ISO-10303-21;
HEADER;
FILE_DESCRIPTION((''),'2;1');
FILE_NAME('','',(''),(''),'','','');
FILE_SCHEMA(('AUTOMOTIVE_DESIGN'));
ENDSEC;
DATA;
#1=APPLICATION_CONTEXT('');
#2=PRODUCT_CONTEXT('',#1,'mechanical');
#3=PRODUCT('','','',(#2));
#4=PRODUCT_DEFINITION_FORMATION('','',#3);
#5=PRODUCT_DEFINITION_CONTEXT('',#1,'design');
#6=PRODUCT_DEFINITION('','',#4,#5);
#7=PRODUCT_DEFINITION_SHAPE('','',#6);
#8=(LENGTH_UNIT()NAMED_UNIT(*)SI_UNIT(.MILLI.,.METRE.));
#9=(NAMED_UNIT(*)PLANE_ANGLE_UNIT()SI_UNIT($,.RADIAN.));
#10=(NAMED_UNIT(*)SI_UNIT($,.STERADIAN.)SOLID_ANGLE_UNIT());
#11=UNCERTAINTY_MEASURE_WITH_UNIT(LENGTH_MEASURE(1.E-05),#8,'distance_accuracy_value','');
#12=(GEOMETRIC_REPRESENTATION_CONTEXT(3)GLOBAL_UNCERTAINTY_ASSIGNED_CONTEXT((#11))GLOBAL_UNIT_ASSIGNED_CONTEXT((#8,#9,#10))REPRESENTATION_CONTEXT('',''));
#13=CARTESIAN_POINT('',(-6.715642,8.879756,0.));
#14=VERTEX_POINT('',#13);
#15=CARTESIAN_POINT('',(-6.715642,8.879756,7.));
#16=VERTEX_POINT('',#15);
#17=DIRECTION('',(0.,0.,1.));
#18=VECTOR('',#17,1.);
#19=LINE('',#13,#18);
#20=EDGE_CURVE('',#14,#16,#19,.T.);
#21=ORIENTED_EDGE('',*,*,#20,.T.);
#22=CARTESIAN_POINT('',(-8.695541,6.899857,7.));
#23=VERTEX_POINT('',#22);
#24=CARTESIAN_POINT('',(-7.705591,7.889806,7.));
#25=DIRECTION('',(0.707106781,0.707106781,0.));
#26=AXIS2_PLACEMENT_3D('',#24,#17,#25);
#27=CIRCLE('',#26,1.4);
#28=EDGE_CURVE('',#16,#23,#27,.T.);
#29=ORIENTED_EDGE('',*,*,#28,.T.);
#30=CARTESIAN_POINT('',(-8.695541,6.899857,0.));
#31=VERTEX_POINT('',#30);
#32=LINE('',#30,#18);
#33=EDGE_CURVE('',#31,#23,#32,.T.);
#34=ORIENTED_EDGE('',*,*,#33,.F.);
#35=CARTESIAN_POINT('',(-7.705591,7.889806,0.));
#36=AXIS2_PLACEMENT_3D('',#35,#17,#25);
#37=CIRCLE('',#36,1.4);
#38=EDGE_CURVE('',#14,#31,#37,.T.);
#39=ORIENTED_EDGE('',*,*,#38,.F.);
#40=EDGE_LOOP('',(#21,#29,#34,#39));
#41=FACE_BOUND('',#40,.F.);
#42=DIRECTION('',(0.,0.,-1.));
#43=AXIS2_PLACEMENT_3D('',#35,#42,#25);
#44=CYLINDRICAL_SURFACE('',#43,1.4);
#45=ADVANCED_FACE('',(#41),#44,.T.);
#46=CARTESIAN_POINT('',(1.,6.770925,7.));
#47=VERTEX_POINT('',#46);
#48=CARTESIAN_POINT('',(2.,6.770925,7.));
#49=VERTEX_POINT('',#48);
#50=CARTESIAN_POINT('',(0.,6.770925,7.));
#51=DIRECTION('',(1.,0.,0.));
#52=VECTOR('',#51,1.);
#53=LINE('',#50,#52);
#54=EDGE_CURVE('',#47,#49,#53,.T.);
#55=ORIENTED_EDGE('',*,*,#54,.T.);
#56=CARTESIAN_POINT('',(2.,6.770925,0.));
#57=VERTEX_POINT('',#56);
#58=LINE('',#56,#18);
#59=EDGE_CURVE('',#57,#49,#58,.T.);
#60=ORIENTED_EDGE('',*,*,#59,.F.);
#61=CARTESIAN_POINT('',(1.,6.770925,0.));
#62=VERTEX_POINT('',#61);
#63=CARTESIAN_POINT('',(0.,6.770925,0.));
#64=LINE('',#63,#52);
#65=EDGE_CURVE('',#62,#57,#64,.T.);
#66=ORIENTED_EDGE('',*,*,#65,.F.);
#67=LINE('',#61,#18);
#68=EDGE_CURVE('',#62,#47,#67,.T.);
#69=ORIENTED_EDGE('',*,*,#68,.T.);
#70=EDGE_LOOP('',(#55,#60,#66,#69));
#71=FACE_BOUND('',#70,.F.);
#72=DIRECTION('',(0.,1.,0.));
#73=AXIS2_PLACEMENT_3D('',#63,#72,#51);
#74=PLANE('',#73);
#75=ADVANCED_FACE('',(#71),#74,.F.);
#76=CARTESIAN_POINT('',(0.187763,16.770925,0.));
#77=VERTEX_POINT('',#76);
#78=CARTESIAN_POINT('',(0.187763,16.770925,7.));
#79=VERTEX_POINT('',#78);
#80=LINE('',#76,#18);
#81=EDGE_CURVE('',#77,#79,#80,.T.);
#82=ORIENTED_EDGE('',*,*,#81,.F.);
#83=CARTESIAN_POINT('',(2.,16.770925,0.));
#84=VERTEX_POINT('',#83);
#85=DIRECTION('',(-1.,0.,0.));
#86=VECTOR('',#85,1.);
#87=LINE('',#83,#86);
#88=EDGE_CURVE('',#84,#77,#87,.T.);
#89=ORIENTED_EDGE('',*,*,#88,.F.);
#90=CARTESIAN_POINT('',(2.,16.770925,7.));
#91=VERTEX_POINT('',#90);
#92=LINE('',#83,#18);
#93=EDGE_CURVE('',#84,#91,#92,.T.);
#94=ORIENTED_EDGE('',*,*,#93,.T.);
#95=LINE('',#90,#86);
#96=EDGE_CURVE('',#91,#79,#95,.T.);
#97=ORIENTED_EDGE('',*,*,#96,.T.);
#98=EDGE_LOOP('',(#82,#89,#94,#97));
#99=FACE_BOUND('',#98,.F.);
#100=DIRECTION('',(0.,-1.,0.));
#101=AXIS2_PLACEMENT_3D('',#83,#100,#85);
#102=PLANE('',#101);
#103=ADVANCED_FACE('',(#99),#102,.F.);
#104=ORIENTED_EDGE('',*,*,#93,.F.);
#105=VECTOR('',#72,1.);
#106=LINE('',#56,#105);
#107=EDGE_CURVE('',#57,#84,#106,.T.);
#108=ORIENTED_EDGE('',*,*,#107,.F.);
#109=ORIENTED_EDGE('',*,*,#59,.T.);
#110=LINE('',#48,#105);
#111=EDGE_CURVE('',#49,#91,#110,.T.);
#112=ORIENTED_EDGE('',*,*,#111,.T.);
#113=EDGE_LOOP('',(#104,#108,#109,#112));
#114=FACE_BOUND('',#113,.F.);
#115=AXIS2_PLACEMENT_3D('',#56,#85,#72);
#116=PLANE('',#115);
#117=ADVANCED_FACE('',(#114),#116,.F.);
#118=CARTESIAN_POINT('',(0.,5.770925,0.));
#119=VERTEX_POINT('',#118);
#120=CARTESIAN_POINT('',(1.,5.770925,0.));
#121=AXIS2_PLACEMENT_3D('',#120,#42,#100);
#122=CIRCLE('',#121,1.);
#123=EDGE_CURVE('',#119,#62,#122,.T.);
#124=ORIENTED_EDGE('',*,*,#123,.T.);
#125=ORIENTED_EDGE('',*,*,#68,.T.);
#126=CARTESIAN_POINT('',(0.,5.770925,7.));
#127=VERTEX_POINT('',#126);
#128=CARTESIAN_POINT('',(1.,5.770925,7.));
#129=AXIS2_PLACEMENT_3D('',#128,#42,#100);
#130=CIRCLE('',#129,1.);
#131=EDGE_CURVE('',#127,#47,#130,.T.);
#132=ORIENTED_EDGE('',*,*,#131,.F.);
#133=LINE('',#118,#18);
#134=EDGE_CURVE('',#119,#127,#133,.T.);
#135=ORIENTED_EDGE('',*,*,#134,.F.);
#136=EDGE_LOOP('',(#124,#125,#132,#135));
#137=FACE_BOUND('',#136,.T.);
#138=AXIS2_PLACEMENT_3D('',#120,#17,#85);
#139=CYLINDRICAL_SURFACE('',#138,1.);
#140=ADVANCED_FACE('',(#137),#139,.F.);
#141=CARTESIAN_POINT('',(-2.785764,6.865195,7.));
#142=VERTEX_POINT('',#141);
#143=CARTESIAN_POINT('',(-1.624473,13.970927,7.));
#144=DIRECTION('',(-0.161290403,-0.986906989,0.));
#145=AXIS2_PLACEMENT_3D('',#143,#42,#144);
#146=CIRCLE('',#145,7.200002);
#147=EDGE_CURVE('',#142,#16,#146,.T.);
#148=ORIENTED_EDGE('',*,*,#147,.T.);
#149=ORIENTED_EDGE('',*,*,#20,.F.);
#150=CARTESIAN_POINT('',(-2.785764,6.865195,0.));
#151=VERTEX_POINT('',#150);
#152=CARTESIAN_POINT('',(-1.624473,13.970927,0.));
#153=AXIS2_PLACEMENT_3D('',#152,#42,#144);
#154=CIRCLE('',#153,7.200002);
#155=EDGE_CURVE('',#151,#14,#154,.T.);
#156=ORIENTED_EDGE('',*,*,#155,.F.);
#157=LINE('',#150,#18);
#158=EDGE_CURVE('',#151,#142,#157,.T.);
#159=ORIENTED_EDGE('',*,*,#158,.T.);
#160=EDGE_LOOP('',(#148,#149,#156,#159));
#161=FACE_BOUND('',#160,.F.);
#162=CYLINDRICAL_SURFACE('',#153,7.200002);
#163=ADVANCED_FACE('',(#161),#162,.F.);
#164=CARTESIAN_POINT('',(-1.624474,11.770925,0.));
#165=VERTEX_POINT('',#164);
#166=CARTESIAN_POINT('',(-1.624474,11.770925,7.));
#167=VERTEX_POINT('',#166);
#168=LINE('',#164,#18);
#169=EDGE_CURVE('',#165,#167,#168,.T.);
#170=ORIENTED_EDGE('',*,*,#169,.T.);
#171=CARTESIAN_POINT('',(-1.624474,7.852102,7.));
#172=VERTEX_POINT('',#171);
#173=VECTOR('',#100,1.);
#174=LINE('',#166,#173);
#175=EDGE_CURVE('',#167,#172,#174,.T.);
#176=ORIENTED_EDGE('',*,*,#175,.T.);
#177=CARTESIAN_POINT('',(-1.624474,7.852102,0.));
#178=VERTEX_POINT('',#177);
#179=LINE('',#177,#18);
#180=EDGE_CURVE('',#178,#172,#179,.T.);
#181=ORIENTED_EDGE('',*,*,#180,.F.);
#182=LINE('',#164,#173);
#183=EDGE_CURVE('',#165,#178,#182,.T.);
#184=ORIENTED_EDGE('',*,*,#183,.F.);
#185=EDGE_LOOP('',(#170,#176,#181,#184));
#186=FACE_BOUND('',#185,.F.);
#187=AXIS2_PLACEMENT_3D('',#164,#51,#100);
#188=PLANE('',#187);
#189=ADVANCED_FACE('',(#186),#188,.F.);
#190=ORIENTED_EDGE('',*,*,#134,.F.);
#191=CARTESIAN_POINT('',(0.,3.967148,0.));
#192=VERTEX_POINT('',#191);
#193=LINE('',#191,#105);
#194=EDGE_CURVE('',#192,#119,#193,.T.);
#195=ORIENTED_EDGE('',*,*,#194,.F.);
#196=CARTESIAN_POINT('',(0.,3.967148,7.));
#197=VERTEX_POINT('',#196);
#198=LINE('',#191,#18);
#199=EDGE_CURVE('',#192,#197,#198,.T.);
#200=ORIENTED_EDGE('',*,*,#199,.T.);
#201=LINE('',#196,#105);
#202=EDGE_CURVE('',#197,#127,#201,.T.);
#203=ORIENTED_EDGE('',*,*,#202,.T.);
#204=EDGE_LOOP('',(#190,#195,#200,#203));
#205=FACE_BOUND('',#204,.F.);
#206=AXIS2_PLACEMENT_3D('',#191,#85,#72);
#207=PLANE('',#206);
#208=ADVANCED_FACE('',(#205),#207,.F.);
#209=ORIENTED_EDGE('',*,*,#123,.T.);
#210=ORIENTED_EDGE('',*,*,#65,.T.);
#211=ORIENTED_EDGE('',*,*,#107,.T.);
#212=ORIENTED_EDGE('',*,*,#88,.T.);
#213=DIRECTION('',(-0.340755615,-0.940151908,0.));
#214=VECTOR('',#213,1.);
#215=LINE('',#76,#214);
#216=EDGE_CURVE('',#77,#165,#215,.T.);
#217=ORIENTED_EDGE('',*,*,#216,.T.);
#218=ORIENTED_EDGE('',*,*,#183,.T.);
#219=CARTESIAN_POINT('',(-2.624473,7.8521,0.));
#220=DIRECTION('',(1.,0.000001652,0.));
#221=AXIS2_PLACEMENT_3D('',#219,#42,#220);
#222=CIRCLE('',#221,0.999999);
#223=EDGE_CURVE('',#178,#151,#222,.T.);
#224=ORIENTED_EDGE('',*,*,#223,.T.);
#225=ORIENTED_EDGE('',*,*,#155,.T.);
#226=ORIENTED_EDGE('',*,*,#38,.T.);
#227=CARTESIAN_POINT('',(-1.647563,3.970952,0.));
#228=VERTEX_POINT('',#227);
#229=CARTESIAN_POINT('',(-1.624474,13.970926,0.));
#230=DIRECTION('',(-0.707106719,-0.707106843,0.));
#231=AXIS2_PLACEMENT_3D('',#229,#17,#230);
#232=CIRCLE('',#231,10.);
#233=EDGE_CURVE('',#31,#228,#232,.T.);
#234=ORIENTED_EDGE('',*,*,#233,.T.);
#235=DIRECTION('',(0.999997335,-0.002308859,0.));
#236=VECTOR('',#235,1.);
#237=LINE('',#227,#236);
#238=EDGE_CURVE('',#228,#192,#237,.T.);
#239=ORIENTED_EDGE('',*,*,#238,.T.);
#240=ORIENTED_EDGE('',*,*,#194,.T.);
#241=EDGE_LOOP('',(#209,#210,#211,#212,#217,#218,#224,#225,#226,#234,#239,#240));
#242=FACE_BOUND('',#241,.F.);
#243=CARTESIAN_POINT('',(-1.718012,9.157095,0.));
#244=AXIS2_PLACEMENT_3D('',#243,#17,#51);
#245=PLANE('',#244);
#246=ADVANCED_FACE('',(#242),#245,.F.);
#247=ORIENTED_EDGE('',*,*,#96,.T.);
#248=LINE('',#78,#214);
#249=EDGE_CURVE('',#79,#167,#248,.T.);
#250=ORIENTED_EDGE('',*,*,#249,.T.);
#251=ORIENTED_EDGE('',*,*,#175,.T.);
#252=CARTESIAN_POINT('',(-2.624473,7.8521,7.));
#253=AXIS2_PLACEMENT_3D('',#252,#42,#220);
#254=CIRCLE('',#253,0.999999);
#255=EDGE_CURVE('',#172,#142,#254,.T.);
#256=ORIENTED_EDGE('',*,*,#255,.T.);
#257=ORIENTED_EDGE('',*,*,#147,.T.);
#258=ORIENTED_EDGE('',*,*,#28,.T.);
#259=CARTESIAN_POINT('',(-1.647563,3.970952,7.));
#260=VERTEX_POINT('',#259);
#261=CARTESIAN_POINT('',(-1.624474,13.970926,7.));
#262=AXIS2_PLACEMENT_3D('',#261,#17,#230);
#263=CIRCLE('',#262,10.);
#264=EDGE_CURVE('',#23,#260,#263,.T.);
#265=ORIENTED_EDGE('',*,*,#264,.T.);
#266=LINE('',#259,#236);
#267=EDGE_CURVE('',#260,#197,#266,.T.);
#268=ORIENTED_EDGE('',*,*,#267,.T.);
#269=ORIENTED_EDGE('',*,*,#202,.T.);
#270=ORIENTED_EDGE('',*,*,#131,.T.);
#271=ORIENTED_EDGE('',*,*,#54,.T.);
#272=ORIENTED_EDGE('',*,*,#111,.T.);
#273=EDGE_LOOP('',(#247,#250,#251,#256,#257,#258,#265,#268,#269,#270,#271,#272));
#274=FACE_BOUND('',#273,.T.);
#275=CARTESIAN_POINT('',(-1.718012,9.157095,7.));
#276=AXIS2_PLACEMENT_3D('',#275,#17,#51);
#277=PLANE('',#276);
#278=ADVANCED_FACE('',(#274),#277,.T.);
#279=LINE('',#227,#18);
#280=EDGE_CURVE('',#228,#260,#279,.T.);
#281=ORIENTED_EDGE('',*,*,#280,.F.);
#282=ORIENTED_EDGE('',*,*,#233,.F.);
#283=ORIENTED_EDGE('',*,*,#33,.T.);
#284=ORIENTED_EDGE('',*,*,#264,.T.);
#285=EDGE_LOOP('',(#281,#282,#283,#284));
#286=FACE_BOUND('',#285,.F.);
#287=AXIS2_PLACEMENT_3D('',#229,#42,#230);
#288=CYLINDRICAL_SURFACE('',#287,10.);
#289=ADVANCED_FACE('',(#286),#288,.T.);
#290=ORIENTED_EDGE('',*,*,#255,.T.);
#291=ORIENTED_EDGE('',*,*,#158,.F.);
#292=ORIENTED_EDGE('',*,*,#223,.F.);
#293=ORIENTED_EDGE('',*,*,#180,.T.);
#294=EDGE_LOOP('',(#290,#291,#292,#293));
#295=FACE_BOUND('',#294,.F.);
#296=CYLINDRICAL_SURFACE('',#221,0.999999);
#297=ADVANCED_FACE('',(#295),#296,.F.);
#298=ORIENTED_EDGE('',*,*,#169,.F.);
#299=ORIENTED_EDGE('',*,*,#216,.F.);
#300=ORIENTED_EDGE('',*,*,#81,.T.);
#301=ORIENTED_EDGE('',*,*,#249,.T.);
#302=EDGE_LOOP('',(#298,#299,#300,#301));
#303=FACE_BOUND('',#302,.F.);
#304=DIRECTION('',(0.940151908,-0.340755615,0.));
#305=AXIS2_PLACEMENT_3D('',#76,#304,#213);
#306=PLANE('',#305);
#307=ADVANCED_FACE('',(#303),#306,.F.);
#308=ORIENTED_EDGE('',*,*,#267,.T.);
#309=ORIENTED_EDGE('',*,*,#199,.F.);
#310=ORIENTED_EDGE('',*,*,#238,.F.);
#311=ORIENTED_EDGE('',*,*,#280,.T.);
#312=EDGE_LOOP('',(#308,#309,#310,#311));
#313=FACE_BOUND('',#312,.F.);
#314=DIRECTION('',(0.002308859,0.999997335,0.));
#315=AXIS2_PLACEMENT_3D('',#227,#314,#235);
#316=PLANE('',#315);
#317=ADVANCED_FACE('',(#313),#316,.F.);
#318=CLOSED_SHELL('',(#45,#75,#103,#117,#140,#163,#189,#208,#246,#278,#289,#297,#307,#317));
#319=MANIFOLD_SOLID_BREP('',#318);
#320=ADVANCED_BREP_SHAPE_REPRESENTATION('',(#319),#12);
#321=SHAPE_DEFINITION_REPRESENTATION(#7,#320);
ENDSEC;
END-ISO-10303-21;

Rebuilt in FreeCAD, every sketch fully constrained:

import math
import FreeCAD as App
import Part
import Sketcher

V = App.Vector


def edges_at(feature, points):
    """Names of the edges that pass closest to the given points."""
    edges = feature.Shape.Edges
    near = lambda p: min(range(len(edges)), key=lambda i: edges[i].distToShape(Part.Vertex(*p))[0])
    return sorted({f"Edge{near(p) + 1}" for p in points})

doc = App.newDocument("Part")
body = doc.addObject("PartDesign::Body", "Body")

# Sketch on XY plane
sketch1 = body.newObject("Sketcher::SketchObject", "Sketch")
sketch1.AttachmentSupport = (doc.getObject("XY_Plane"), [""])
sketch1.MapMode = "FlatFace"
sketch1.addGeometry(Part.LineSegment(V(0, 4, 0), V(0, 6.8, 0)), False)
sketch1.addGeometry(Part.LineSegment(V(0, 6.8, 0), V(2, 6.8, 0)), False)
sketch1.addGeometry(Part.LineSegment(V(2, 6.8, 0), V(2, 16.8, 0)), False)
sketch1.addGeometry(Part.LineSegment(V(2, 16.8, 0), V(0.2, 16.8, 0)), False)
sketch1.addGeometry(Part.LineSegment(V(0.2, 16.8, 0), V(-1.6, 11.8, 0)), False)
sketch1.addGeometry(Part.LineSegment(V(-1.6, 11.8, 0), V(-1.6, 7.9, 0)), False)
sketch1.addGeometry(Part.ArcOfCircle(Part.Circle(V(-2.6, 7.9, 0), V(0, 0, 1), 1), math.radians(-99), math.radians(0)), False)
sketch1.addGeometry(Part.ArcOfCircle(Part.Circle(V(-1.6, 14, 0), V(0, 0, 1), 7.2), math.radians(-135), math.radians(-99)), False)
sketch1.addGeometry(Part.ArcOfCircle(Part.Circle(V(-7.7, 7.9, 0), V(0, 0, 1), 1.4), math.radians(45), math.radians(225)), False)
sketch1.addGeometry(Part.ArcOfCircle(Part.Circle(V(-1.6, 14, 0), V(0, 0, 1), 10), math.radians(-135), math.radians(-90)), False)
sketch1.addGeometry(Part.LineSegment(V(-1.6, 4, 0), V(0, 4, 0)), False)
sketch1.addConstraint(Sketcher.Constraint("Coincident", 0, 2, 1, 1))
sketch1.addConstraint(Sketcher.Constraint("Coincident", 1, 2, 2, 1))
sketch1.addConstraint(Sketcher.Constraint("Coincident", 2, 2, 3, 1))
sketch1.addConstraint(Sketcher.Constraint("Coincident", 3, 2, 4, 1))
sketch1.addConstraint(Sketcher.Constraint("Coincident", 4, 2, 5, 1))
sketch1.addConstraint(Sketcher.Constraint("Tangent", 5, 2, 6, 2))
sketch1.addConstraint(Sketcher.Constraint("Tangent", 6, 1, 7, 2))
sketch1.addConstraint(Sketcher.Constraint("Tangent", 7, 1, 8, 1))
sketch1.addConstraint(Sketcher.Constraint("Tangent", 8, 2, 9, 1))
sketch1.addConstraint(Sketcher.Constraint("Tangent", 9, 2, 10, 1))
sketch1.addConstraint(Sketcher.Constraint("Coincident", 10, 2, 0, 1))
sketch1.addConstraint(Sketcher.Constraint("Vertical", 0))
sketch1.addConstraint(Sketcher.Constraint("Horizontal", 1))
sketch1.addConstraint(Sketcher.Constraint("Vertical", 2))
sketch1.addConstraint(Sketcher.Constraint("Horizontal", 3))
sketch1.addConstraint(Sketcher.Constraint("Vertical", 5))
sketch1.addConstraint(Sketcher.Constraint("Coincident", 9, 3, 7, 3))
sketch1.addConstraint(Sketcher.Constraint("PointOnObject", 0, 2, -2))
sketch1.addConstraint(Sketcher.Constraint("Vertical", 9, 3, 4, 2))
sketch1.addConstraint(Sketcher.Constraint("Radius", 6, 0.999999))
sketch1.addConstraint(Sketcher.Constraint("Radius", 9, 10.0))
sketch1.addConstraint(Sketcher.Constraint("Radius", 8, 1.4))
sketch1.addConstraint(Sketcher.Constraint("DistanceX", 1, 1, 1, 2, 2.0))
sketch1.addConstraint(Sketcher.Constraint("DistanceY", 2, 1, 2, 2, 10.0))
sketch1.addConstraint(Sketcher.Constraint("DistanceY", 0, 2, 4, 2, 5.0))
sketch1.addConstraint(Sketcher.Constraint("DistanceY", 0, 2, 9, 3, 7.200001))
sketch1.addConstraint(Sketcher.Constraint("DistanceY", -1, 1, 6, 3, 7.8521))
sketch1.addConstraint(Sketcher.Constraint("DistanceX", 8, 2, 7, 1, 1.979899))
sketch1.addConstraint(Sketcher.Constraint("DistanceX", 6, 1, 9, 2, 1.138201))
sketch1.addConstraint(Sketcher.Constraint("Distance", 4, 5.318289))
sketch1.addConstraint(Sketcher.Constraint("DistanceX", 3, 2, 3, 1, 1.812237))
pad1 = body.newObject("PartDesign::Pad", "Pad")
pad1.Profile = sketch1
pad1.Length = 7
doc.recompute()

fillet = body.newObject("PartDesign::Fillet", "Fillet")
fillet.Base = (pad1, edges_at(pad1, [(0, 6.771, 3.5)]))
fillet.Radius = 1

doc.recompute()
